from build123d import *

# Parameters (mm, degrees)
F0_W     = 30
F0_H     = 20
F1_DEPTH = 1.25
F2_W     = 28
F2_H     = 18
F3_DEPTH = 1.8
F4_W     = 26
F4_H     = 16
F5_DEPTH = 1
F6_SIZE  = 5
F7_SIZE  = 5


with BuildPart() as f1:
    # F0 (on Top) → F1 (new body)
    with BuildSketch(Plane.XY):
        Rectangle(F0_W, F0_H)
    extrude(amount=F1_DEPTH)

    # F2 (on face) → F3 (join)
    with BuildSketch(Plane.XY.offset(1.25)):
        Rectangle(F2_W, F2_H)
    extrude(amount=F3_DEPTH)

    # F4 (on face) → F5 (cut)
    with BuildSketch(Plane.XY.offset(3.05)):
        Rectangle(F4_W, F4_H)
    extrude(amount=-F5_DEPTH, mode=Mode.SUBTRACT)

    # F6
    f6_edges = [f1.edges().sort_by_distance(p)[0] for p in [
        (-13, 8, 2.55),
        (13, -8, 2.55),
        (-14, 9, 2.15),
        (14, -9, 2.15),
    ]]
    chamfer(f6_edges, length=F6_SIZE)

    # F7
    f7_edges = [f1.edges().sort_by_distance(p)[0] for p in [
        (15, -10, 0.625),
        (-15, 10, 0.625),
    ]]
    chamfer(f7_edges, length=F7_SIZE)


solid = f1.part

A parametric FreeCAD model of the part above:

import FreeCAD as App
import Part
import Sketcher
Q = App.Units.Quantity


def edges_at(feature, points):
    """Names of the edges that pass closest to the given points."""
    edges = feature.Shape.Edges
    near = lambda p: min(range(len(edges)), key=lambda i: edges[i].distToShape(Part.Vertex(*p))[0])
    return sorted({f"Edge{near(p) + 1}" for p in points})

doc = App.newDocument("Part")
body = doc.addObject("PartDesign::Body", "Body")

# Sketch on XY plane
sketch1 = doc.addObject("Sketcher::SketchObject", "Sketch")
body.addObject(sketch1)
sketch1.AttachmentSupport = (doc.XY_Plane, [""])
sketch1.MapMode = "FlatFace"
sketch1.addGeometry([
    Part.LineSegment(App.Vector(-15, 10, 0), App.Vector(-15, -10, 0)),
    Part.LineSegment(App.Vector(-15, -10, 0), App.Vector(15, -10, 0)),
    Part.LineSegment(App.Vector(15, -10, 0), App.Vector(15, 10, 0)),
    Part.LineSegment(App.Vector(15, 10, 0), App.Vector(-15, 10, 0)),
], False)
sketch1.addConstraint([
    Sketcher.Constraint("Coincident", 0, 2, 1, 1),
    Sketcher.Constraint("Coincident", 1, 2, 2, 1),
    Sketcher.Constraint("Coincident", 2, 2, 3, 1),
    Sketcher.Constraint("Coincident", 3, 2, 0, 1),
    Sketcher.Constraint("Vertical", 0),
    Sketcher.Constraint("Horizontal", 1),
    Sketcher.Constraint("Vertical", 2),
    Sketcher.Constraint("Horizontal", 3),
    Sketcher.Constraint("Symmetric", 0, 2, 2, 2, -1, 1),
    Sketcher.Constraint("DistanceX", 1, 1, 1, 2, Q("30 mm")),
    Sketcher.Constraint("DistanceY", 0, 2, 0, 1, Q("20 mm")),
])
pad1 = doc.addObject("PartDesign::Pad", "Pad")
body.addObject(pad1)
pad1.Profile = sketch1
pad1.Length = 1.25

# Sketch on XY plane
sketch2 = doc.addObject("Sketcher::SketchObject", "Sketch001")
body.addObject(sketch2)
sketch2.AttachmentSupport = (doc.XY_Plane, [""])
sketch2.MapMode = "FlatFace"
sketch2.AttachmentOffset = App.Placement(App.Vector(0, 0, 1.25), App.Rotation())
sketch2.addGeometry([
    Part.LineSegment(App.Vector(-14, 9, 0), App.Vector(-14, -9, 0)),
    Part.LineSegment(App.Vector(-14, -9, 0), App.Vector(14, -9, 0)),
    Part.LineSegment(App.Vector(14, -9, 0), App.Vector(14, 9, 0)),
    Part.LineSegment(App.Vector(14, 9, 0), App.Vector(-14, 9, 0)),
], False)
sketch2.addConstraint([
    Sketcher.Constraint("Coincident", 0, 2, 1, 1),
    Sketcher.Constraint("Coincident", 1, 2, 2, 1),
    Sketcher.Constraint("Coincident", 2, 2, 3, 1),
    Sketcher.Constraint("Coincident", 3, 2, 0, 1),
    Sketcher.Constraint("Vertical", 0),
    Sketcher.Constraint("Horizontal", 1),
    Sketcher.Constraint("Vertical", 2),
    Sketcher.Constraint("Horizontal", 3),
    Sketcher.Constraint("Symmetric", 0, 2, 2, 2, -1, 1),
    Sketcher.Constraint("DistanceX", 1, 1, 1, 2, Q("28 mm")),
    Sketcher.Constraint("DistanceY", 0, 2, 0, 1, Q("18 mm")),
])
pad2 = doc.addObject("PartDesign::Pad", "Pad001")
body.addObject(pad2)
pad2.Profile = sketch2
pad2.Length = 1.8

# Sketch on XY plane
sketch3 = doc.addObject("Sketcher::SketchObject", "Sketch002")
body.addObject(sketch3)
sketch3.AttachmentSupport = (doc.XY_Plane, [""])
sketch3.MapMode = "FlatFace"
sketch3.AttachmentOffset = App.Placement(App.Vector(0, 0, 3.05), App.Rotation())
sketch3.addGeometry([
    Part.LineSegment(App.Vector(-13, 8, 0), App.Vector(-13, -8, 0)),
    Part.LineSegment(App.Vector(-13, -8, 0), App.Vector(13, -8, 0)),
    Part.LineSegment(App.Vector(13, -8, 0), App.Vector(13, 8, 0)),
    Part.LineSegment(App.Vector(13, 8, 0), App.Vector(-13, 8, 0)),
], False)
sketch3.addConstraint([
    Sketcher.Constraint("Coincident", 0, 2, 1, 1),
    Sketcher.Constraint("Coincident", 1, 2, 2, 1),
    Sketcher.Constraint("Coincident", 2, 2, 3, 1),
    Sketcher.Constraint("Coincident", 3, 2, 0, 1),
    Sketcher.Constraint("Vertical", 0),
    Sketcher.Constraint("Horizontal", 1),
    Sketcher.Constraint("Vertical", 2),
    Sketcher.Constraint("Horizontal", 3),
    Sketcher.Constraint("Symmetric", 0, 2, 2, 2, -1, 1),
    Sketcher.Constraint("DistanceX", 1, 1, 1, 2, Q("26 mm")),
    Sketcher.Constraint("DistanceY", 0, 2, 0, 1, Q("16 mm")),
])
pocket1 = doc.addObject("PartDesign::Pocket", "Pocket")
body.addObject(pocket1)
pocket1.Profile = sketch3
pocket1.Length = 1
doc.recompute()

chamfer = doc.addObject("PartDesign::Chamfer", "Chamfer")
body.addObject(chamfer)
chamfer.Base = (pocket1, edges_at(pocket1, [
    (-13, 8, 2.55),
    (13, -8, 2.55),
    (-14, 9, 2.15),
    (14, -9, 2.15),
]))
chamfer.Size = 5
doc.recompute()

chamfer2 = doc.addObject("PartDesign::Chamfer", "Chamfer001")
body.addObject(chamfer2)
chamfer2.Base = (chamfer, edges_at(chamfer, [(15, -10, 0.625), (-15, 10, 0.625)]))
chamfer2.Size = 5

doc.recompute()
